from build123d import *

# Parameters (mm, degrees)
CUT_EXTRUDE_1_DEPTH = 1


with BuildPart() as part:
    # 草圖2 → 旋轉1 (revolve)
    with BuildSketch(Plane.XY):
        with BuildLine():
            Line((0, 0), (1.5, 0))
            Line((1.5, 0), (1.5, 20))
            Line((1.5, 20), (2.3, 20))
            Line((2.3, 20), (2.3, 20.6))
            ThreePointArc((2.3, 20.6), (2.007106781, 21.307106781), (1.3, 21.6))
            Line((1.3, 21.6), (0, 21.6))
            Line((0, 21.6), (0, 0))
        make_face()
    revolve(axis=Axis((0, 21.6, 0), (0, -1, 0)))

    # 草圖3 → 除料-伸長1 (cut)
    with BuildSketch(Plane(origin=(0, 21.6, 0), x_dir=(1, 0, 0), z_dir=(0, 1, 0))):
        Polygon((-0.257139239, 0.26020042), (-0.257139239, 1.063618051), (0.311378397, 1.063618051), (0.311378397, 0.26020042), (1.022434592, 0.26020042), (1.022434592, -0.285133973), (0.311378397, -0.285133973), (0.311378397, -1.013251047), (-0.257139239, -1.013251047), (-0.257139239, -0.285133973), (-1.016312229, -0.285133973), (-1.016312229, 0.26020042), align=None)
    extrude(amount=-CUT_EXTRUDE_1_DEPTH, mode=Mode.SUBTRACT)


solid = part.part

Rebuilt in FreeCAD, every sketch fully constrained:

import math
import FreeCAD as App
import Part
import Sketcher

V = App.Vector
Q = App.Units.Quantity

doc = App.newDocument("Part")
body = doc.addObject("PartDesign::Body", "Body")

# Sketch on XY plane
sketch1 = doc.addObject("Sketcher::SketchObject", "Sketch")
body.addObject(sketch1)
sketch1.AttachmentSupport = (doc.XY_Plane, [""])
sketch1.MapMode = "FlatFace"
sketch1.addGeometry([
    Part.LineSegment(V(0, 0, 0), V(1.5, 0, 0)),  # 0
    Part.LineSegment(V(1.5, 0, 0), V(1.5, 20, 0)),  # 1
    Part.LineSegment(V(1.5, 20, 0), V(2.3, 20, 0)),  # 2
    Part.LineSegment(V(2.3, 20, 0), V(2.3, 20.6, 0)),  # 3
    Part.ArcOfCircle(Part.Circle(V(1.3, 20.6, 0), V(0, 0, 1), 1), math.radians(0), math.radians(90)),  # 4
    Part.LineSegment(V(1.3, 21.6, 0), V(0, 21.6, 0)),  # 5
    Part.LineSegment(V(0, 21.6, 0), V(0, 0, 0)),  # 6
], False)
sketch1.addConstraint([
    Sketcher.Constraint("Coincident", 0, 2, 1, 1),
    Sketcher.Constraint("Coincident", 1, 2, 2, 1),
    Sketcher.Constraint("Coincident", 2, 2, 3, 1),
    Sketcher.Constraint("Tangent", 3, 2, 4, 1),
    Sketcher.Constraint("Tangent", 4, 2, 5, 1),
    Sketcher.Constraint("Coincident", 5, 2, 6, 1),
    Sketcher.Constraint("Coincident", 6, 2, 0, 1),
    Sketcher.Constraint("Horizontal", 0),
    Sketcher.Constraint("Vertical", 1),
    Sketcher.Constraint("Horizontal", 2),
    Sketcher.Constraint("Vertical", 3),
    Sketcher.Constraint("Horizontal", 5),
    Sketcher.Constraint("Vertical", 6),
    Sketcher.Constraint("Coincident", 6, 2, -1, 1),
    Sketcher.Constraint("Radius", 4, Q("1 mm")),
    Sketcher.Constraint("DistanceY", 1, 1, 1, 2, Q("20 mm")),
    Sketcher.Constraint("DistanceX", 0, 1, 0, 2, Q("1.5 mm")),
    Sketcher.Constraint("DistanceX", 2, 1, 2, 2, Q("0.8 mm")),
    Sketcher.Constraint("DistanceY", 3, 1, 3, 2, Q("0.6 mm")),
])
revolution = doc.addObject("PartDesign::Revolution", "Revolution")
body.addObject(revolution)
revolution.Profile = sketch1
revolution.ReferenceAxis = (sketch1, ["V_Axis"])
revolution.Angle = 360

# Sketch on XZ plane
sketch2 = doc.addObject("Sketcher::SketchObject", "Sketch001")
body.addObject(sketch2)
sketch2.AttachmentSupport = (doc.XZ_Plane, [""])
sketch2.MapMode = "FlatFace"
sketch2.AttachmentOffset = App.Placement(V(0, 0, -21.6), App.Rotation())
sketch2.addGeometry([
    Part.LineSegment(V(-0.257139, -1.063618, 0), V(-0.257139, -0.2602, 0)),  # 0
    Part.LineSegment(V(-0.257139, -0.2602, 0), V(-1.016312, -0.2602, 0)),  # 1
    Part.LineSegment(V(-1.016312, -0.2602, 0), V(-1.016312, 0.285134, 0)),  # 2
    Part.LineSegment(V(-1.016312, 0.285134, 0), V(-0.257139, 0.285134, 0)),  # 3
    Part.LineSegment(V(-0.257139, 0.285134, 0), V(-0.257139, 1.013251, 0)),  # 4
    Part.LineSegment(V(-0.257139, 1.013251, 0), V(0.311378, 1.013251, 0)),  # 5
    Part.LineSegment(V(0.311378, 1.013251, 0), V(0.311378, 0.285134, 0)),  # 6
    Part.LineSegment(V(0.311378, 0.285134, 0), V(1.022435, 0.285134, 0)),  # 7
    Part.LineSegment(V(1.022435, 0.285134, 0), V(1.022435, -0.2602, 0)),  # 8
    Part.LineSegment(V(1.022435, -0.2602, 0), V(0.311378, -0.2602, 0)),  # 9
    Part.LineSegment(V(0.311378, -0.2602, 0), V(0.311378, -1.063618, 0)),  # 10
    Part.LineSegment(V(0.311378, -1.063618, 0), V(-0.257139, -1.063618, 0)),  # 11
], False)
sketch2.addConstraint([
    Sketcher.Constraint("Coincident", 0, 2, 1, 1),
    Sketcher.Constraint("Coincident", 1, 2, 2, 1),
    Sketcher.Constraint("Coincident", 2, 2, 3, 1),
    Sketcher.Constraint("Coincident", 3, 2, 4, 1),
    Sketcher.Constraint("Coincident", 4, 2, 5, 1),
    Sketcher.Constraint("Coincident", 5, 2, 6, 1),
    Sketcher.Constraint("Coincident", 6, 2, 7, 1),
    Sketcher.Constraint("Coincident", 7, 2, 8, 1),
    Sketcher.Constraint("Coincident", 8, 2, 9, 1),
    Sketcher.Constraint("Coincident", 9, 2, 10, 1),
    Sketcher.Constraint("Coincident", 10, 2, 11, 1),
    Sketcher.Constraint("Coincident", 11, 2, 0, 1),
    Sketcher.Constraint("Vertical", 0),
    Sketcher.Constraint("Horizontal", 1),
    Sketcher.Constraint("Vertical", 2),
    Sketcher.Constraint("Horizontal", 3),
    Sketcher.Constraint("Vertical", 4),
    Sketcher.Constraint("Horizontal", 5),
    Sketcher.Constraint("Vertical", 6),
    Sketcher.Constraint("Horizontal", 7),
    Sketcher.Constraint("Vertical", 8),
    Sketcher.Constraint("Horizontal", 9),
    Sketcher.Constraint("Vertical", 10),
    Sketcher.Constraint("Horizontal", 11),
    Sketcher.Constraint("Horizontal", 3, 2, 6, 2),
    Sketcher.Constraint("Horizontal", 1, 2, 8, 2),
    Sketcher.Constraint("Vertical", 0, 2, 3, 2),
    Sketcher.Constraint("Vertical", 6, 2, 9, 2),
    Sketcher.Constraint("DistanceY", 0, 2, -1, 1, Q("0.2602 mm")),
    Sketcher.Constraint("DistanceX", 1, 2, 1, 1, Q("0.759173 mm")),
    Sketcher.Constraint("DistanceX", 5, 1, 5, 2, Q("0.568518 mm")),
    Sketcher.Constraint("DistanceX", 7, 1, 7, 2, Q("0.711056 mm")),
    Sketcher.Constraint("DistanceY", 0, 1, 0, 2, Q("0.803418 mm")),
    Sketcher.Constraint("DistanceY", 2, 1, 2, 2, Q("0.545334 mm")),
    Sketcher.Constraint("DistanceY", 4, 1, 4, 2, Q("0.728117 mm")),
    Sketcher.Constraint("DistanceX", 0, 2, -1, 1, Q("0.257139 mm")),
])
pocket1 = doc.addObject("PartDesign::Pocket", "Pocket")
body.addObject(pocket1)
pocket1.Profile = sketch2
pocket1.Length = 1
pocket1.Reversed = True

doc.recompute()
